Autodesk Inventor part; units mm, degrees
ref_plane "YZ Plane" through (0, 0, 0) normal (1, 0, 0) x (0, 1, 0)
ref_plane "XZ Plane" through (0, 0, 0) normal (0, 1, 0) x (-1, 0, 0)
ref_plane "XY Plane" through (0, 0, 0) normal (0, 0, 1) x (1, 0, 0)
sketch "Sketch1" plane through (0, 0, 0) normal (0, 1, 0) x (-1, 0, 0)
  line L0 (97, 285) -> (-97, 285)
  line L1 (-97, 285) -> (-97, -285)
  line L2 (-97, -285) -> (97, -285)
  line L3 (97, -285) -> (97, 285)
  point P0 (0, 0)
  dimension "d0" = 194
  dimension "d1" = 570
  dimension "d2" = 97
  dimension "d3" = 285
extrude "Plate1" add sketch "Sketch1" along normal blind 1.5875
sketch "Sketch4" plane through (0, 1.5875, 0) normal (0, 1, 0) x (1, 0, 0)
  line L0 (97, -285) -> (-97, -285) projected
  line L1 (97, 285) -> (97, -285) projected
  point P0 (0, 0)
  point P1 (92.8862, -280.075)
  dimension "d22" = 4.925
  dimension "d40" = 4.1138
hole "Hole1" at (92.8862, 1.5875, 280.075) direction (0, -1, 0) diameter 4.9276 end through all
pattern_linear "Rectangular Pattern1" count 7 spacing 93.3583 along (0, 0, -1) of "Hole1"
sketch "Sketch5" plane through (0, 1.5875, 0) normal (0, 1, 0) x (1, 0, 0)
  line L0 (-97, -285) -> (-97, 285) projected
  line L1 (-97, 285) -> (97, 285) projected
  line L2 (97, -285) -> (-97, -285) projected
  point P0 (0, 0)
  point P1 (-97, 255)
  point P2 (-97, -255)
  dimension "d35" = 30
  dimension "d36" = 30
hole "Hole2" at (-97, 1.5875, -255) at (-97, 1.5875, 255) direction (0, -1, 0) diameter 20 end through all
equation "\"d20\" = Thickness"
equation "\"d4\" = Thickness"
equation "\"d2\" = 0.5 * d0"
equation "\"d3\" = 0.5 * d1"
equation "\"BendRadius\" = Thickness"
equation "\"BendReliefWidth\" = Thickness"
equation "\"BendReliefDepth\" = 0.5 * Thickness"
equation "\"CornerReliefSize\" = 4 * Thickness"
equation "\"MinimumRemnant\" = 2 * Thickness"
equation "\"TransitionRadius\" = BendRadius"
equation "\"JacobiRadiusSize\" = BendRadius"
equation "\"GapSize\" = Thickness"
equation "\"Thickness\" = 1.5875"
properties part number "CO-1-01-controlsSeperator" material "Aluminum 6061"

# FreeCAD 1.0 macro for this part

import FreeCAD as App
import Part
import Sketcher

V = App.Vector
Q = App.Units.Quantity


def add_polygon(sketch, points):
    """Adds a closed chain of lines whose ends are joined by coincident constraints."""
    first, n = sketch.GeometryCount, len(points)
    for a, b in zip(points, points[1:] + points[:1]):
        sketch.addGeometry(Part.LineSegment(App.Vector(*a, 0), App.Vector(*b, 0)), False)
    for i in range(n):
        sketch.addConstraint(Sketcher.Constraint("Coincident", first + i, 2, first + (i + 1) % n, 1))

doc = App.newDocument("Part")
params = doc.addObject("Spreadsheet::Sheet", "Params")
for row, (alias, value) in enumerate([
    ("pad1_length", "0.0625 in"),
    ("sketch2_diameter", "0.194 in"),
    ("hole_diameter", "0.194 in"),
    ("linearpattern_pitch", "93.3583 mm"),
    ("hole2_diameter", "0.7874016 in"),
], start=1):
    params.set(f"A{row}", alias)
    params.set(f"B{row}", "=" + value)
    params.setAlias(f"B{row}", alias)

body = doc.addObject("PartDesign::Body", "Body")

# Sketch on XZ plane
sketch1 = body.newObject("Sketcher::SketchObject", "Sketch")
sketch1.AttachmentSupport = (doc.getObject("XZ_Plane"), [""])
sketch1.MapMode = "FlatFace"
add_polygon(sketch1, [(-97, -285), (-97, 285), (97, 285), (97, -285)])  # lines 0-3
sketch1.addConstraint(Sketcher.Constraint("Vertical", 0))
sketch1.addConstraint(Sketcher.Constraint("Horizontal", 1))
sketch1.addConstraint(Sketcher.Constraint("Vertical", 2))
sketch1.addConstraint(Sketcher.Constraint("Horizontal", 3))
sketch1.addConstraint(Sketcher.Constraint("Symmetric", 0, 2, 2, 2, -1, 1))
sketch1.addConstraint(Sketcher.Constraint("DistanceX", 1, 1, 1, 2, Q("7.6378 in")))
sketch1.addConstraint(Sketcher.Constraint("DistanceY", 0, 1, 0, 2, 570.0))
pad1 = body.newObject("PartDesign::Pad", "Pad")
pad1.Profile = sketch1
pad1.setExpression("Length", "Params.pad1_length")
pad1.Reversed = True

# Sketch on XZ plane
sketch2 = body.newObject("Sketcher::SketchObject", "Sketch001")
sketch2.AttachmentSupport = (doc.getObject("XZ_Plane"), [""])
sketch2.MapMode = "FlatFace"
sketch2.AttachmentOffset = App.Placement(V(0, 0, -0.0625 * 25.4), App.Rotation())
sketch2.addGeometry(Part.Circle(V(92.9, 280.1, 0), V(0, 0, 1), 2.5), False)
sketch2.addConstraint(Sketcher.Constraint("Diameter", 0, Q("0.194 in")))
sketch2.addConstraint(Sketcher.Constraint("DistanceX", -1, 1, 0, 3, 92.8862))
sketch2.addConstraint(Sketcher.Constraint("DistanceY", -1, 1, 0, 3, 280.075))
sketch2.setExpression("Constraints[0]", "Params.sketch2_diameter")
doc.recompute()
hole = body.newObject("PartDesign::Hole", "Hole")
hole.Profile = sketch2
hole.ThreadType = "None"
hole.setExpression("Diameter", "Params.hole_diameter")
hole.DepthType = "ThroughAll"
hole.Reversed = True
doc.recompute()

linearpattern = body.newObject("PartDesign::LinearPattern", "LinearPattern")
linearpattern.Originals = [hole]
linearpattern.Direction = (doc.getObject("Z_Axis"), [""])
linearpattern.Mode = "offset"
linearpattern.setExpression("Offset", "Params.linearpattern_pitch")
linearpattern.Occurrences = 7
linearpattern.Reversed = True
body.Tip = linearpattern

# Sketch on XZ plane
sketch3 = body.newObject("Sketcher::SketchObject", "Sketch002")
sketch3.AttachmentSupport = (doc.getObject("XZ_Plane"), [""])
sketch3.MapMode = "FlatFace"
sketch3.AttachmentOffset = App.Placement(V(0, 0, -0.0625 * 25.4), App.Rotation())
sketch3.addGeometry(Part.Circle(V(-97, -255, 0), V(0, 0, 1), 10), False)
sketch3.addGeometry(Part.Circle(V(-97, 255, 0), V(0, 0, 1), 10), False)
sketch3.addConstraint(Sketcher.Constraint("Equal", 0, 1))
sketch3.addConstraint(Sketcher.Constraint("Symmetric", 0, 3, 1, 3, -1))
sketch3.addConstraint(Sketcher.Constraint("Diameter", 0, Q("0.7874 in")))
sketch3.addConstraint(Sketcher.Constraint("DistanceX", 0, 3, -1, 1, Q("3.8189 in")))
sketch3.addConstraint(Sketcher.Constraint("DistanceY", 0, 3, -1, 1, 255.0))
doc.recompute()
hole2 = body.newObject("PartDesign::Hole", "Hole001")
hole2.Profile = sketch3
hole2.ThreadType = "None"
hole2.setExpression("Diameter", "Params.hole2_diameter")
hole2.DepthType = "ThroughAll"
hole2.Reversed = True

doc.recompute()
